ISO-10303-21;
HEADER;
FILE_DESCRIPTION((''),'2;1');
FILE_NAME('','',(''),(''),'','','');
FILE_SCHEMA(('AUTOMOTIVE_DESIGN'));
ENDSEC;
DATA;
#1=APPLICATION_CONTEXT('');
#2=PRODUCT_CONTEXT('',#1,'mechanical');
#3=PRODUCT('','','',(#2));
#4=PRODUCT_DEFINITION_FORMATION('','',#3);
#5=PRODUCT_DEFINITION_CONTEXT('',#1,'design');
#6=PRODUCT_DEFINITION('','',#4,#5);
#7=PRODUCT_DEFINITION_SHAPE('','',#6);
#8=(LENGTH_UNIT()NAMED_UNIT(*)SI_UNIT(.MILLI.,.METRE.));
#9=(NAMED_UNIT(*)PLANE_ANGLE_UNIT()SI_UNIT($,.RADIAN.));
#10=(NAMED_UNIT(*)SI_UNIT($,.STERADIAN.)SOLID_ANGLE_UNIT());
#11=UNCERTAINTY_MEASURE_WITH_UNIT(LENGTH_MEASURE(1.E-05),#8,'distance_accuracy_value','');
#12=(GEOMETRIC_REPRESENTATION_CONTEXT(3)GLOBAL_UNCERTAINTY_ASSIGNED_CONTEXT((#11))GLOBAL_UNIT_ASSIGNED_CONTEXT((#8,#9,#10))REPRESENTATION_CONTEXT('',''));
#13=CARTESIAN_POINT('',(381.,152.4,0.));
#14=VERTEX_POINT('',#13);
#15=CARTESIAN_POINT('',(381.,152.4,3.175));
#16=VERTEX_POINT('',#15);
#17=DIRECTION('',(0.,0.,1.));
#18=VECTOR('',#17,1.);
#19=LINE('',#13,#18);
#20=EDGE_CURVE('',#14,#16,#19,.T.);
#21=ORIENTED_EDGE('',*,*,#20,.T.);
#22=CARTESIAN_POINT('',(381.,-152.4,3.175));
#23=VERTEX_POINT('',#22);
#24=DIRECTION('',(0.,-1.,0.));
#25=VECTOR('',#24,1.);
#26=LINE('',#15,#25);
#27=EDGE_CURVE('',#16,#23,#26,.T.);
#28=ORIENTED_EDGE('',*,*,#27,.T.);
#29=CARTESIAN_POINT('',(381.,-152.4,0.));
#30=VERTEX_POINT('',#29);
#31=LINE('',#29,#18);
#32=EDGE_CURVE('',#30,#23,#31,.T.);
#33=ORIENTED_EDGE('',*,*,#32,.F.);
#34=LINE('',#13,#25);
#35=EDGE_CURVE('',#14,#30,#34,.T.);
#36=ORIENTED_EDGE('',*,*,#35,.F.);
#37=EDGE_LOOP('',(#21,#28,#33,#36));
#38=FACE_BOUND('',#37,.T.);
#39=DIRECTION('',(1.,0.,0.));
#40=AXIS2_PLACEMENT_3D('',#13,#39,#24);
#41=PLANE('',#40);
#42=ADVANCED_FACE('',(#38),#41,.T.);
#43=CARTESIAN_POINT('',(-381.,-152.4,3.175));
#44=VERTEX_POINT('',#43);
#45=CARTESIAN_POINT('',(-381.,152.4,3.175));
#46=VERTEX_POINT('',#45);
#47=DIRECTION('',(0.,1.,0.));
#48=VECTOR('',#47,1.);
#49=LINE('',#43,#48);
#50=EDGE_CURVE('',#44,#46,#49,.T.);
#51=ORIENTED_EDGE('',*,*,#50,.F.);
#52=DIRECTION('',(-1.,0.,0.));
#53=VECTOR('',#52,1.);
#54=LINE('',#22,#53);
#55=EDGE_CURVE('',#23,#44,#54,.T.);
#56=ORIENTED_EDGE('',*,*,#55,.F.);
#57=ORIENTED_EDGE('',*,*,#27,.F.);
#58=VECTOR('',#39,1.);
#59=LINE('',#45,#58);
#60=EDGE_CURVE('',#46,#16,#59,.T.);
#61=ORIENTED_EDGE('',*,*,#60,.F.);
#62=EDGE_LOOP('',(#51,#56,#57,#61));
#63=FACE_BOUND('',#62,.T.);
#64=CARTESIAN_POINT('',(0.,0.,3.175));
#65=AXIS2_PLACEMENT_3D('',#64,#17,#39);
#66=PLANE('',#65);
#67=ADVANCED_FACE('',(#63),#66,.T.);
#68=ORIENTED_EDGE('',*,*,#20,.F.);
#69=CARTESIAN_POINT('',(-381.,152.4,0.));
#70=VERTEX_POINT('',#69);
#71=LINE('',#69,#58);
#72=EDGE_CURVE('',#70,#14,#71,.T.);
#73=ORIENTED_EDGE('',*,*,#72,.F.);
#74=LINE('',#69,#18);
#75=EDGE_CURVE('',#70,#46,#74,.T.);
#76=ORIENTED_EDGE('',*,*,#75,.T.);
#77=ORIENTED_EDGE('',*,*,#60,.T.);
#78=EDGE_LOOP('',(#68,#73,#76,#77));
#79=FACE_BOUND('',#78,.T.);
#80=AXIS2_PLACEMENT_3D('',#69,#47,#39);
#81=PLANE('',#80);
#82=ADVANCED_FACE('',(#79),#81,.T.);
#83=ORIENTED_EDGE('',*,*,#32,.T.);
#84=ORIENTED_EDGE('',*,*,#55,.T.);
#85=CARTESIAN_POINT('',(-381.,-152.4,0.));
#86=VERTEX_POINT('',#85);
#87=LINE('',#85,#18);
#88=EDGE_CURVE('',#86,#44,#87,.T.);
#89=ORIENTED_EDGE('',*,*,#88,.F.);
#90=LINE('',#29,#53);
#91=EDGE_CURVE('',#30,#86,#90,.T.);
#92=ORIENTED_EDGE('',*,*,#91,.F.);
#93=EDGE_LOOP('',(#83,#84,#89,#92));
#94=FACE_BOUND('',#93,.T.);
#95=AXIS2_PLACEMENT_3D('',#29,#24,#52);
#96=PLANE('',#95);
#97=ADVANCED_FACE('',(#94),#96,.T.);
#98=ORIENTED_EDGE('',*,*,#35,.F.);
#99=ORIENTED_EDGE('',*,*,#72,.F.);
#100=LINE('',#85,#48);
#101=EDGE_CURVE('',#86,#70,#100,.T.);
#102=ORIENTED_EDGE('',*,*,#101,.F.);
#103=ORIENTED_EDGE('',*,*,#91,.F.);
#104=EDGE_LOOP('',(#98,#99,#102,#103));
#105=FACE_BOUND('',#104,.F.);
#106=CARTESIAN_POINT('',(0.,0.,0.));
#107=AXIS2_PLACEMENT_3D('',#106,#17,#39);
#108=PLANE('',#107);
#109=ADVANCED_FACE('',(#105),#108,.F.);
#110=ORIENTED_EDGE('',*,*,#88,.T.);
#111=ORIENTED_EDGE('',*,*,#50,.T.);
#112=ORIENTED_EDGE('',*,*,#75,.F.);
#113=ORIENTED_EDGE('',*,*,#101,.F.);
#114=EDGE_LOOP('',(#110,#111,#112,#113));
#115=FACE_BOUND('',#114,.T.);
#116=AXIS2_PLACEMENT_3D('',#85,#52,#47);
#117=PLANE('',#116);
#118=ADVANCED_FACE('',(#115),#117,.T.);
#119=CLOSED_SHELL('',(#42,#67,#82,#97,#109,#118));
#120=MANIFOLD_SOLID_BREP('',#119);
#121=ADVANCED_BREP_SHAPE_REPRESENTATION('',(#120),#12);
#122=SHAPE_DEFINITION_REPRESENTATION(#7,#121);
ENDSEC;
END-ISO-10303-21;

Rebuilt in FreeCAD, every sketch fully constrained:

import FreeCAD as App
import Part
import Sketcher

V = App.Vector
Q = App.Units.Quantity


def add_polygon(sketch, points):
    """Adds a closed chain of lines whose ends are joined by coincident constraints."""
    first, n = sketch.GeometryCount, len(points)
    for a, b in zip(points, points[1:] + points[:1]):
        sketch.addGeometry(Part.LineSegment(App.Vector(*a, 0), App.Vector(*b, 0)), False)
    for i in range(n):
        sketch.addConstraint(Sketcher.Constraint("Coincident", first + i, 2, first + (i + 1) % n, 1))

doc = App.newDocument("Part")
params = doc.addObject("Spreadsheet::Sheet", "Params")
for row, (alias, value) in enumerate([
    ("sketch1_width", "30 in"),
    ("sketch1_height", "12 in"),
    ("pad1_length", "0.125 in"),
], start=1):
    params.set(f"A{row}", alias)
    params.set(f"B{row}", "=" + value)
    params.setAlias(f"B{row}", alias)

body = doc.addObject("PartDesign::Body", "Body")

sketch1 = doc.addObject("Sketcher::SketchObject", "Sketch")
body.addObject(sketch1)
sketch1.AttachmentSupport = (doc.XY_Plane, [""])
sketch1.MapMode = "FlatFace"
add_polygon(sketch1, [(381, 152.4), (-381, 152.4), (-381, -152.4), (381, -152.4)])
sketch1.addConstraint([
    Sketcher.Constraint("Horizontal", 0),
    Sketcher.Constraint("Vertical", 1),
    Sketcher.Constraint("Horizontal", 2),
    Sketcher.Constraint("Vertical", 3),
    Sketcher.Constraint("Symmetric", 0, 2, 2, 2, -1, 1),
    Sketcher.Constraint("DistanceX", 0, 2, 0, 1, Q("30 in")),
    Sketcher.Constraint("DistanceY", 1, 2, 1, 1, Q("12 in")),
])
sketch1.setExpression("Constraints[9]", "Params.sketch1_width")
sketch1.setExpression("Constraints[10]", "Params.sketch1_height")
pad1 = doc.addObject("PartDesign::Pad", "Pad")
body.addObject(pad1)
pad1.Profile = sketch1
pad1.setExpression("Length", "Params.pad1_length")

doc.recompute()
